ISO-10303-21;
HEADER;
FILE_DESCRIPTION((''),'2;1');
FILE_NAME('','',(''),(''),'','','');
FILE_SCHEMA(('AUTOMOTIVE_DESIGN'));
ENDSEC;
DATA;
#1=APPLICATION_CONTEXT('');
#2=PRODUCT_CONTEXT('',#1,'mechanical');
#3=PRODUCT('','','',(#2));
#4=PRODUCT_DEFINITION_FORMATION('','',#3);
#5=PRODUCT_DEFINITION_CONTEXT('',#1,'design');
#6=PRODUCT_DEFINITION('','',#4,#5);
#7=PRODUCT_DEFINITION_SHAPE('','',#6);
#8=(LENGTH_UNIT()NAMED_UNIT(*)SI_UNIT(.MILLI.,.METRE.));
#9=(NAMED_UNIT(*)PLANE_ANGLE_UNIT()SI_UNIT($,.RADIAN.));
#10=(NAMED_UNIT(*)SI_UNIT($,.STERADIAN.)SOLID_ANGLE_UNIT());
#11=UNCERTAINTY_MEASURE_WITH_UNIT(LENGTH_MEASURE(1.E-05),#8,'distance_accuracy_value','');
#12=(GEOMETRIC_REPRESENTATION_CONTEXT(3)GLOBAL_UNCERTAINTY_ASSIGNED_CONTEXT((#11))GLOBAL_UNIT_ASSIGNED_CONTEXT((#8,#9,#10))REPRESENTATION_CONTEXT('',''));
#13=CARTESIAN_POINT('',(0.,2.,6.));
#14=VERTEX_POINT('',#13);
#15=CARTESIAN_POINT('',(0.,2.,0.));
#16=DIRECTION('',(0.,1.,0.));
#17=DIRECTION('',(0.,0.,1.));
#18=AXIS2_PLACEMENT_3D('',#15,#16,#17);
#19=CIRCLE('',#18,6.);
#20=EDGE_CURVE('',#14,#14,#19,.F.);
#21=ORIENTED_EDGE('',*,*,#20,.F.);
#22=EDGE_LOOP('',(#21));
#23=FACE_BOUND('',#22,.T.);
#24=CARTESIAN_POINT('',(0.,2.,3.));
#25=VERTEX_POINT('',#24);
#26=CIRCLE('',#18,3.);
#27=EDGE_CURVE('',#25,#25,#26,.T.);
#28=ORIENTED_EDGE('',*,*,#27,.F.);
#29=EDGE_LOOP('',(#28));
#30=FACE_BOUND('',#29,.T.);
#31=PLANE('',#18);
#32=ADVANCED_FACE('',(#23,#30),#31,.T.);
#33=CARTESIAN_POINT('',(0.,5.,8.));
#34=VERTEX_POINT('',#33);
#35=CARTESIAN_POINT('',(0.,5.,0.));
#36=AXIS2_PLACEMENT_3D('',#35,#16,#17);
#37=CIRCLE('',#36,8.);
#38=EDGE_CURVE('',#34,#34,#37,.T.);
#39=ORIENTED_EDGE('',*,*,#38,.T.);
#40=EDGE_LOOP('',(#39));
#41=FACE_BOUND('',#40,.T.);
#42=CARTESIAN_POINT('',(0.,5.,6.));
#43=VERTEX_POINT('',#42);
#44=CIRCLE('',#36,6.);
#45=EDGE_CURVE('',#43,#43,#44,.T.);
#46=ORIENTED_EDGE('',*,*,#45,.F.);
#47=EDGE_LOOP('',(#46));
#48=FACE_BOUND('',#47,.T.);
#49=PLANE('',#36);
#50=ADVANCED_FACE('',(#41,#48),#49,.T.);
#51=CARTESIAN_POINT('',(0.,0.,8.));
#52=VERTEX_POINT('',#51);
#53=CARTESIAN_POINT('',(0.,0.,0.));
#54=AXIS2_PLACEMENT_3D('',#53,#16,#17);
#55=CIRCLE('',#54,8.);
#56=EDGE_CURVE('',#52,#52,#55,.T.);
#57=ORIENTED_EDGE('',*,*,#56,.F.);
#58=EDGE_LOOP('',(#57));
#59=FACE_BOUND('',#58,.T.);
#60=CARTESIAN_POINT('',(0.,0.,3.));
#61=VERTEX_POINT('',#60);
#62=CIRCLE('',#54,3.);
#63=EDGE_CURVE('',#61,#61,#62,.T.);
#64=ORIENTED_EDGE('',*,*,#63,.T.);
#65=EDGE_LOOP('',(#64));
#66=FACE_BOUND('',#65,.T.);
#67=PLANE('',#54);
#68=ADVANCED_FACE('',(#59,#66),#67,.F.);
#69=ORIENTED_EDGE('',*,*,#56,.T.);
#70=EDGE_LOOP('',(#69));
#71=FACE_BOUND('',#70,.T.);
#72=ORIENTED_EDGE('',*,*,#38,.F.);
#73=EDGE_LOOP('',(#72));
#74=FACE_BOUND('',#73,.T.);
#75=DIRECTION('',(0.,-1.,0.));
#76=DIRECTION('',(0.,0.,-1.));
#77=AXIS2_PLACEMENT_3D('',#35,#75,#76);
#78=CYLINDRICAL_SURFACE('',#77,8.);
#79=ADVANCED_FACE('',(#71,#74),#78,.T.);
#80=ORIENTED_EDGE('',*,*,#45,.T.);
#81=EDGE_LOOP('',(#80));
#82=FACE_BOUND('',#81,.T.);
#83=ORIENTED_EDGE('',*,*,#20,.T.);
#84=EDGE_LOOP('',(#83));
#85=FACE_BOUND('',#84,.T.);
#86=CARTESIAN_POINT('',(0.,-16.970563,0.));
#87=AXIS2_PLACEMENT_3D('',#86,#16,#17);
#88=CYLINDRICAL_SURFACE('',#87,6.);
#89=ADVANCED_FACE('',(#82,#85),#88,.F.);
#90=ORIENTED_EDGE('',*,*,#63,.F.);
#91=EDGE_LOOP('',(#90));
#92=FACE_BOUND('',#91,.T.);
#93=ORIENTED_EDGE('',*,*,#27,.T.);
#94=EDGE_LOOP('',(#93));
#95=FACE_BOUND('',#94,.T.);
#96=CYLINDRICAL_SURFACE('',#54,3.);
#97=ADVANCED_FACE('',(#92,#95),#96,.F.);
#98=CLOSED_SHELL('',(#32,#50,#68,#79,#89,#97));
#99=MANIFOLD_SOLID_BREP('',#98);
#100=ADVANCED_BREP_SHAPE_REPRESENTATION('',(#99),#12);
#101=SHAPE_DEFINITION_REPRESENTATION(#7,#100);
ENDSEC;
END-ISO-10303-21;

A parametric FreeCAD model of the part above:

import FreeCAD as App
import Part
import Sketcher
Q = App.Units.Quantity

doc = App.newDocument("Part")
params = doc.addObject("Spreadsheet::Sheet", "Params")
for row, (alias, value) in enumerate([
    ("sketch1_diameter", "16 mm"),
    ("pad1_length", "5 mm"),
    ("sketch2_diameter", "12 mm"),
    ("pocket1_length", "3 mm"),
    ("sketch3_diameter", "6 mm"),
], start=1):
    params.set(f"A{row}", alias)
    params.set(f"B{row}", "=" + value)
    params.setAlias(f"B{row}", alias)

body = doc.addObject("PartDesign::Body", "Body")

sketch1 = doc.addObject("Sketcher::SketchObject", "Sketch")
body.addObject(sketch1)
sketch1.AttachmentSupport = (doc.XZ_Plane, [""])
sketch1.MapMode = "FlatFace"
sketch1.addGeometry(Part.Circle(App.Vector(0, 0, 0), App.Vector(0, 0, 1), 8), False)
sketch1.addConstraint([
    Sketcher.Constraint("Coincident", 0, 3, -1, 1),
    Sketcher.Constraint("Diameter", 0, Q("16 mm")),
])
sketch1.setExpression("Constraints[1]", "Params.sketch1_diameter")
pad1 = doc.addObject("PartDesign::Pad", "Pad")
body.addObject(pad1)
pad1.Profile = sketch1
pad1.setExpression("Length", "Params.pad1_length")
pad1.Reversed = True

sketch2 = doc.addObject("Sketcher::SketchObject", "Sketch001")
body.addObject(sketch2)
sketch2.AttachmentSupport = (doc.XZ_Plane, [""])
sketch2.MapMode = "FlatFace"
sketch2.AttachmentOffset = App.Placement(App.Vector(0, 0, -5), App.Rotation())
sketch2.addGeometry(Part.Circle(App.Vector(0, 0, 0), App.Vector(0, 0, 1), 6), False)
sketch2.addConstraint([
    Sketcher.Constraint("Coincident", 0, 3, -1, 1),
    Sketcher.Constraint("Diameter", 0, Q("12 mm")),
])
sketch2.setExpression("Constraints[1]", "Params.sketch2_diameter")
pocket1 = doc.addObject("PartDesign::Pocket", "Pocket")
body.addObject(pocket1)
pocket1.Profile = sketch2
pocket1.setExpression("Length", "Params.pocket1_length")
pocket1.Reversed = True

sketch3 = doc.addObject("Sketcher::SketchObject", "Sketch002")
body.addObject(sketch3)
sketch3.AttachmentSupport = (doc.XZ_Plane, [""])
sketch3.MapMode = "FlatFace"
sketch3.AttachmentOffset = App.Placement(App.Vector(0, 0, -2), App.Rotation())
sketch3.addGeometry(Part.Circle(App.Vector(0, 0, 0), App.Vector(0, 0, 1), 3), False)
sketch3.addConstraint([
    Sketcher.Constraint("Coincident", 0, 3, -1, 1),
    Sketcher.Constraint("Diameter", 0, Q("6 mm")),
])
sketch3.setExpression("Constraints[1]", "Params.sketch3_diameter")
pocket2 = doc.addObject("PartDesign::Pocket", "Pocket001")
body.addObject(pocket2)
pocket2.Profile = sketch3
pocket2.Type = "ThroughAll"
pocket2.Reversed = True

doc.recompute()
